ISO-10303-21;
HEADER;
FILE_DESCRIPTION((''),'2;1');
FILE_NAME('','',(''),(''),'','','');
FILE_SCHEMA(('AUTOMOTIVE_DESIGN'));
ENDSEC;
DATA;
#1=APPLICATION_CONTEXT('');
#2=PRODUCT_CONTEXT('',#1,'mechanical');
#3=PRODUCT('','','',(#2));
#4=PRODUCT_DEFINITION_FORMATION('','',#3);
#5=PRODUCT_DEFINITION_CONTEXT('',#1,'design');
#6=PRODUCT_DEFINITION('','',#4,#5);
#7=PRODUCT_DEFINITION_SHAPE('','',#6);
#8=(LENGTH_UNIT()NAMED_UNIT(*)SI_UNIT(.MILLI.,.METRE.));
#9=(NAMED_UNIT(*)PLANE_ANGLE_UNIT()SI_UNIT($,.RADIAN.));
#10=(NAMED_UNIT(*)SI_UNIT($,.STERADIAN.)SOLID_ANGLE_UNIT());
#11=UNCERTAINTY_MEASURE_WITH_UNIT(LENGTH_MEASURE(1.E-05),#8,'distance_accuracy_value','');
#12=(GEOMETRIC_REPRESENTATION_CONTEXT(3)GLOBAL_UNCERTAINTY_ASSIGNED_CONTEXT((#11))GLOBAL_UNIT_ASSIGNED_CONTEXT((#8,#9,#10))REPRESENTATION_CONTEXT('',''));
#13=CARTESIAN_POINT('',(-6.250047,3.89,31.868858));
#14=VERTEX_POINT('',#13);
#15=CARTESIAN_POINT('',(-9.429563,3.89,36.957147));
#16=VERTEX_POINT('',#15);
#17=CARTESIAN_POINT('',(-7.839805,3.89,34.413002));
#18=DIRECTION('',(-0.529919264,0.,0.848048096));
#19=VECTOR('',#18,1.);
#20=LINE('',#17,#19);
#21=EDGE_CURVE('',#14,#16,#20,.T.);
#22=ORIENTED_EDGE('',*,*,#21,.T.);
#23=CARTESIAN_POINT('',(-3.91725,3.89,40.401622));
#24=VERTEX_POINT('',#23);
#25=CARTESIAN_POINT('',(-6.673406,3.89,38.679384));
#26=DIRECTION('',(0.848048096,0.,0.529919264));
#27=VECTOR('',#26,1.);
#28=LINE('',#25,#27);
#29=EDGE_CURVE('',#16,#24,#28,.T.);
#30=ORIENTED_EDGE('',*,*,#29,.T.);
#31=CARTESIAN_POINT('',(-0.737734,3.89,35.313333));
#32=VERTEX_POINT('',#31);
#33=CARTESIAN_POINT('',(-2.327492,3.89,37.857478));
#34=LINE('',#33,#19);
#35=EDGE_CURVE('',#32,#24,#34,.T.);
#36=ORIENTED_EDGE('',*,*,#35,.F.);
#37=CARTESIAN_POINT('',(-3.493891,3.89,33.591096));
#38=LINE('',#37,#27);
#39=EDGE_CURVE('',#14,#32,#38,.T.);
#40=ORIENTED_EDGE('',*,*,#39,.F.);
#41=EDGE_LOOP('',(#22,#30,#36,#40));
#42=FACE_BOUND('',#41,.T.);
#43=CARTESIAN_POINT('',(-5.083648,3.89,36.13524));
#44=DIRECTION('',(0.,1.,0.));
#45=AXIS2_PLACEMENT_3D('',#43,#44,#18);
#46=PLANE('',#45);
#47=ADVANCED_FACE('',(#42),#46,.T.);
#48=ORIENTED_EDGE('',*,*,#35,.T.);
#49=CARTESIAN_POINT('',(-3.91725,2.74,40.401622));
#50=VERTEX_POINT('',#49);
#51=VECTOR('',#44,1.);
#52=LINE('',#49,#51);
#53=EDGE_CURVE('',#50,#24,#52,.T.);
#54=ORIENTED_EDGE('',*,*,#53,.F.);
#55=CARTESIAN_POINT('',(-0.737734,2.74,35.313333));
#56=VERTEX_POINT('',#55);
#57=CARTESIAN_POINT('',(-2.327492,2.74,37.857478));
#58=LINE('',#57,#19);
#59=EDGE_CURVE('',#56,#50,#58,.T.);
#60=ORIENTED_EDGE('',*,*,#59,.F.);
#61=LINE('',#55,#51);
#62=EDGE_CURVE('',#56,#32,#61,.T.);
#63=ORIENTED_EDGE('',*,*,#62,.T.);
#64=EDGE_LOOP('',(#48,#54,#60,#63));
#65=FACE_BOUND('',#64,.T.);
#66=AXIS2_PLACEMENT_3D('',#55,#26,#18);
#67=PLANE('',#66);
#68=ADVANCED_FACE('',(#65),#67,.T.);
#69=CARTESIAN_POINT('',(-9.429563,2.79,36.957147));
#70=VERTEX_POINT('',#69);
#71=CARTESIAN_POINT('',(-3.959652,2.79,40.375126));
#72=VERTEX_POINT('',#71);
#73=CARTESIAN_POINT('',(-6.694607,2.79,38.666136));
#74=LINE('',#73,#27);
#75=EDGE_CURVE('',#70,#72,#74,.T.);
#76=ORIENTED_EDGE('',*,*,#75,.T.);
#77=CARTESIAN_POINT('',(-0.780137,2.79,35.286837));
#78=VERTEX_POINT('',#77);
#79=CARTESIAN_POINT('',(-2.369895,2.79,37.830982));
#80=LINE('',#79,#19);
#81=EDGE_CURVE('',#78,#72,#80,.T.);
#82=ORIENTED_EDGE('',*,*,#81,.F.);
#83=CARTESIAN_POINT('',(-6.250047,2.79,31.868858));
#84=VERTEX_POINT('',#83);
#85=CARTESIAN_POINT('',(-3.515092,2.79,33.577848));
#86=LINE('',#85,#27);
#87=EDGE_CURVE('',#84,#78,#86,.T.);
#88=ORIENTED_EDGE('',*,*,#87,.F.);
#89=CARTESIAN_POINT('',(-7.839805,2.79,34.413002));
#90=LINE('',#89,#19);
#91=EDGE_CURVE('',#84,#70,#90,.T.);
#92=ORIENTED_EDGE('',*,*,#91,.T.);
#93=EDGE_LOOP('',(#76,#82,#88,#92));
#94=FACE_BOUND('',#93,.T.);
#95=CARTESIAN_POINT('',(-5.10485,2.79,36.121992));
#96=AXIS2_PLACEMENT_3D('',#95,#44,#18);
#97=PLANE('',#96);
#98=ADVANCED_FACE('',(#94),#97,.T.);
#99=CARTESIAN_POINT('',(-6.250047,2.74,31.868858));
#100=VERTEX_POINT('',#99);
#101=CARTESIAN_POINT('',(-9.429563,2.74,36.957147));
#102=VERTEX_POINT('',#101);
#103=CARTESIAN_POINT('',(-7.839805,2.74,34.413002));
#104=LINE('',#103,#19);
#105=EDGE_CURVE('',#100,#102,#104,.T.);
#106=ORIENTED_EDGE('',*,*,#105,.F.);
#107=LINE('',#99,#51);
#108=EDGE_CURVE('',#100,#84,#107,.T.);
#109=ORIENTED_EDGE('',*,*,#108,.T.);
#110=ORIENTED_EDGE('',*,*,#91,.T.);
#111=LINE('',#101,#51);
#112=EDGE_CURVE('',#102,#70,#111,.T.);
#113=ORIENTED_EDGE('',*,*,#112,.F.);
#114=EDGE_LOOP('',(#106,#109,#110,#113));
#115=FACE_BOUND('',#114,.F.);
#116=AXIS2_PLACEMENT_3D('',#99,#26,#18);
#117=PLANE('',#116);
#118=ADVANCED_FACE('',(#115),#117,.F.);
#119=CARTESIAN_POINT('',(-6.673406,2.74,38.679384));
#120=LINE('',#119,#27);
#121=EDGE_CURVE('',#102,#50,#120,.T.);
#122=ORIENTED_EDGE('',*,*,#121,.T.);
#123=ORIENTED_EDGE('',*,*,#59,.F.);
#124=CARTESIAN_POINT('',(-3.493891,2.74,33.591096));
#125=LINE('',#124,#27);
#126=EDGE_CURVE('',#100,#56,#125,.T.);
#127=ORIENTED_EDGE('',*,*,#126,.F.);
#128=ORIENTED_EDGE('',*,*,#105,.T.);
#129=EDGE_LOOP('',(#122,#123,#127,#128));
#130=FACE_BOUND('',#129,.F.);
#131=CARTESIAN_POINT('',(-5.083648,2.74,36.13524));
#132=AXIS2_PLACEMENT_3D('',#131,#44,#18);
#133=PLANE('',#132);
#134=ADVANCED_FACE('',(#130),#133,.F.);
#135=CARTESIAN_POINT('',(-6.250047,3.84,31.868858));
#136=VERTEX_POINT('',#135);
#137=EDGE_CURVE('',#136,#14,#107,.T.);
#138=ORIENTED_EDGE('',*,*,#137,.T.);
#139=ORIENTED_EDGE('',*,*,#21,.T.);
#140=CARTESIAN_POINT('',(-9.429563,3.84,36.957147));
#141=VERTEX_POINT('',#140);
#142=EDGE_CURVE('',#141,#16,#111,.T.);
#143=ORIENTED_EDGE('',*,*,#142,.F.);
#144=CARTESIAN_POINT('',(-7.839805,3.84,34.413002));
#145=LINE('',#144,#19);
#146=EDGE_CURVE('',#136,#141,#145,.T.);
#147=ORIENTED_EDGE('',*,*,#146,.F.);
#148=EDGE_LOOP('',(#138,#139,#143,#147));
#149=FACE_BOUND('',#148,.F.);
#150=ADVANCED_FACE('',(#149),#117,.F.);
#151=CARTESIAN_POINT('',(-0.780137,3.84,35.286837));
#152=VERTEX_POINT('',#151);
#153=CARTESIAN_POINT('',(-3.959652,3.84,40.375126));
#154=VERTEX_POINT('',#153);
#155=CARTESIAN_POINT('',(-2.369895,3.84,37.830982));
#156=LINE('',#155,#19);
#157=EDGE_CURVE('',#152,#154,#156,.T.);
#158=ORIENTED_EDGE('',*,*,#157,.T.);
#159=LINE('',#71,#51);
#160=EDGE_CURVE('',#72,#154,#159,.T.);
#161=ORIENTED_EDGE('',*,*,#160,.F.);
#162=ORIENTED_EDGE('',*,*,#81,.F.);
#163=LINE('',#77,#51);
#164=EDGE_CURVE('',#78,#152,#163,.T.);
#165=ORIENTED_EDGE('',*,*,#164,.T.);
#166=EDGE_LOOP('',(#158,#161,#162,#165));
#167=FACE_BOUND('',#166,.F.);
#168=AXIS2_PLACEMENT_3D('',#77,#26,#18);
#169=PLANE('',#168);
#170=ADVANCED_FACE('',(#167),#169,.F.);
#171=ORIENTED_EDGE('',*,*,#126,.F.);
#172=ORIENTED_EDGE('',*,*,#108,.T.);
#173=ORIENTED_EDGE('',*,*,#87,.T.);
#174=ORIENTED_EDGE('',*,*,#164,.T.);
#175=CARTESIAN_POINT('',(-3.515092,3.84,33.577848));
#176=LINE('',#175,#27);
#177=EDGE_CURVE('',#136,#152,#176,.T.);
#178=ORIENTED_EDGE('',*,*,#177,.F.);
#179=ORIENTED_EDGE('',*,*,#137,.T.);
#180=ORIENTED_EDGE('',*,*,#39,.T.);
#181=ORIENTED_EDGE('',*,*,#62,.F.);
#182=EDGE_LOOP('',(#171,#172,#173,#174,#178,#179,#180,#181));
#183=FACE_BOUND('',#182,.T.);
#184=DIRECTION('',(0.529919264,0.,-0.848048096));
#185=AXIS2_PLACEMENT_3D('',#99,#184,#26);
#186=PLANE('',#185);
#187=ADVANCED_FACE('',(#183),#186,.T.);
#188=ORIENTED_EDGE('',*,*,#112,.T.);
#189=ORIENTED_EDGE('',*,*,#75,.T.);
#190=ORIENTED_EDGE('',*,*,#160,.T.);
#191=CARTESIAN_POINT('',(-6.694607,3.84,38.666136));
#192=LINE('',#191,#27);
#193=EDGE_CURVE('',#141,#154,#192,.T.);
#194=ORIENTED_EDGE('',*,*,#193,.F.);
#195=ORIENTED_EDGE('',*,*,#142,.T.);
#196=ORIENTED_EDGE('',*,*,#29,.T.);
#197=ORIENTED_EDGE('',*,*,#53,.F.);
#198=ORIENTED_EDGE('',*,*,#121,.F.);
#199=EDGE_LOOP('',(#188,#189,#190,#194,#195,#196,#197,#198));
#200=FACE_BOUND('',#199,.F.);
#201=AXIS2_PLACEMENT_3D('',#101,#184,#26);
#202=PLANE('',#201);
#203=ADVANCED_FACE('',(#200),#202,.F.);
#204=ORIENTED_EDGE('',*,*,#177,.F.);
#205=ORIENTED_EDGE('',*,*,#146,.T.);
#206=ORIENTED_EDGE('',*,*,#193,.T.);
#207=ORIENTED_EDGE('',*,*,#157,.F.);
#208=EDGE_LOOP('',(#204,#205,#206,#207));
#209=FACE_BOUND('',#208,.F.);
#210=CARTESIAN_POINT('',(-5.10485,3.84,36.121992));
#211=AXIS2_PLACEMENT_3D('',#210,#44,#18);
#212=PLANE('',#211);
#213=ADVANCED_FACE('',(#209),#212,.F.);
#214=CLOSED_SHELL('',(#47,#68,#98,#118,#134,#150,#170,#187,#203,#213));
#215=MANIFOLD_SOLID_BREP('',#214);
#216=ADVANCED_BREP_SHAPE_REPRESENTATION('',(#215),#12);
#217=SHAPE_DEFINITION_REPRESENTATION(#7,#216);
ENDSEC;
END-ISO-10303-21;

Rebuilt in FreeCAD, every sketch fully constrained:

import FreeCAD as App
import Part
import Sketcher

V = App.Vector
Q = App.Units.Quantity


def add_polygon(sketch, points):
    """Adds a closed chain of lines whose ends are joined by coincident constraints."""
    first, n = sketch.GeometryCount, len(points)
    for a, b in zip(points, points[1:] + points[:1]):
        sketch.addGeometry(Part.LineSegment(App.Vector(*a, 0), App.Vector(*b, 0)), False)
    for i in range(n):
        sketch.addConstraint(Sketcher.Constraint("Coincident", first + i, 2, first + (i + 1) % n, 1))

doc = App.newDocument("Part")
params = doc.addObject("Spreadsheet::Sheet", "Params")
for row, (alias, value) in enumerate([
    ("sketch1_width", "6 mm"),
    ("sketch1_height", "6.45 mm"),
    ("pad1_length", "1.05 mm"),
    ("sketch2_width", "6 mm"),
    ("sketch2_height", "6.5 mm"),
    ("pad2_length", "1.15 mm"),
], start=1):
    params.set(f"A{row}", alias)
    params.set(f"B{row}", "=" + value)
    params.setAlias(f"B{row}", alias)

body = doc.addObject("PartDesign::Body", "Body")

sketch1 = body.newObject("Sketcher::SketchObject", "Sketch")
sketch1.AttachmentSupport = (doc.getObject("XY_Plane"), [""])
sketch1.MapMode = "FlatFace"
sketch1.AttachmentOffset = App.Placement(V(0, 0, 0.05), App.Rotation())
add_polygon(sketch1, [(0, 6), (0, 0), (6, 0), (6, 6)])
sketch1.addConstraint([
    Sketcher.Constraint("Vertical", 0),
    Sketcher.Constraint("Horizontal", 1),
    Sketcher.Constraint("Vertical", 2),
    Sketcher.Constraint("Horizontal", 3),
    Sketcher.Constraint("Coincident", 0, 2, -1, 1),
    Sketcher.Constraint("DistanceX", 1, 1, 1, 2, Q("6 mm")),
    Sketcher.Constraint("DistanceY", 0, 2, 0, 1, Q("6.45 mm")),
])
sketch1.setExpression("Constraints[9]", "Params.sketch1_width")
sketch1.setExpression("Constraints[10]", "Params.sketch1_height")
pad1 = body.newObject("PartDesign::Pad", "Pad")
pad1.Profile = sketch1
pad1.setExpression("Length", "Params.pad1_length")
body2 = doc.addObject("PartDesign::Body", "Body001")

sketch2 = body2.newObject("Sketcher::SketchObject", "Sketch001")
sketch2.AttachmentSupport = (doc.getObject("XY_Plane001"), [""])
sketch2.MapMode = "FlatFace"
add_polygon(sketch2, [(0, 6), (0, 0), (6, 0), (6, 6)])
sketch2.addConstraint([
    Sketcher.Constraint("Vertical", 0),
    Sketcher.Constraint("Horizontal", 1),
    Sketcher.Constraint("Vertical", 2),
    Sketcher.Constraint("Horizontal", 3),
    Sketcher.Constraint("Coincident", 0, 2, -1, 1),
    Sketcher.Constraint("DistanceX", 1, 1, 1, 2, Q("6 mm")),
    Sketcher.Constraint("DistanceY", 0, 2, 0, 1, Q("6.5 mm")),
])
sketch2.setExpression("Constraints[9]", "Params.sketch2_width")
sketch2.setExpression("Constraints[10]", "Params.sketch2_height")
pad2 = body2.newObject("PartDesign::Pad", "Pad001")
pad2.Profile = sketch2
pad2.setExpression("Length", "Params.pad2_length")
doc.recompute()

boolean = body2.newObject("PartDesign::Boolean", "Boolean")
boolean.Type = "Cut"
boolean.addObjects([body])
body3 = doc.addObject("PartDesign::Body", "Body002")
doc.recompute()

body2.Placement = App.Placement(V(0, 0, 0), App.Rotation(V(1, 0, 0), 90))
boolean2 = body3.newObject("PartDesign::Boolean", "Boolean001")
boolean2.Type = "Fuse"
boolean2.addObjects([body2])
body4 = doc.addObject("PartDesign::Body", "Body003")
doc.recompute()

body3.Placement = App.Placement(V(0, 0, 0), App.Rotation(V(0, 1, 0), 302))
boolean3 = body4.newObject("PartDesign::Boolean", "Boolean002")
boolean3.Type = "Fuse"
boolean3.addObjects([body3])
body5 = doc.addObject("PartDesign::Body", "Body004")
doc.recompute()

body4.Placement = App.Placement(V(-6.250047, 2.74, 31.868858), App.Rotation(V(0, 0, 1), 180))
boolean4 = body5.newObject("PartDesign::Boolean", "Boolean003")
boolean4.Type = "Fuse"
boolean4.addObjects([body4])

doc.recompute()
